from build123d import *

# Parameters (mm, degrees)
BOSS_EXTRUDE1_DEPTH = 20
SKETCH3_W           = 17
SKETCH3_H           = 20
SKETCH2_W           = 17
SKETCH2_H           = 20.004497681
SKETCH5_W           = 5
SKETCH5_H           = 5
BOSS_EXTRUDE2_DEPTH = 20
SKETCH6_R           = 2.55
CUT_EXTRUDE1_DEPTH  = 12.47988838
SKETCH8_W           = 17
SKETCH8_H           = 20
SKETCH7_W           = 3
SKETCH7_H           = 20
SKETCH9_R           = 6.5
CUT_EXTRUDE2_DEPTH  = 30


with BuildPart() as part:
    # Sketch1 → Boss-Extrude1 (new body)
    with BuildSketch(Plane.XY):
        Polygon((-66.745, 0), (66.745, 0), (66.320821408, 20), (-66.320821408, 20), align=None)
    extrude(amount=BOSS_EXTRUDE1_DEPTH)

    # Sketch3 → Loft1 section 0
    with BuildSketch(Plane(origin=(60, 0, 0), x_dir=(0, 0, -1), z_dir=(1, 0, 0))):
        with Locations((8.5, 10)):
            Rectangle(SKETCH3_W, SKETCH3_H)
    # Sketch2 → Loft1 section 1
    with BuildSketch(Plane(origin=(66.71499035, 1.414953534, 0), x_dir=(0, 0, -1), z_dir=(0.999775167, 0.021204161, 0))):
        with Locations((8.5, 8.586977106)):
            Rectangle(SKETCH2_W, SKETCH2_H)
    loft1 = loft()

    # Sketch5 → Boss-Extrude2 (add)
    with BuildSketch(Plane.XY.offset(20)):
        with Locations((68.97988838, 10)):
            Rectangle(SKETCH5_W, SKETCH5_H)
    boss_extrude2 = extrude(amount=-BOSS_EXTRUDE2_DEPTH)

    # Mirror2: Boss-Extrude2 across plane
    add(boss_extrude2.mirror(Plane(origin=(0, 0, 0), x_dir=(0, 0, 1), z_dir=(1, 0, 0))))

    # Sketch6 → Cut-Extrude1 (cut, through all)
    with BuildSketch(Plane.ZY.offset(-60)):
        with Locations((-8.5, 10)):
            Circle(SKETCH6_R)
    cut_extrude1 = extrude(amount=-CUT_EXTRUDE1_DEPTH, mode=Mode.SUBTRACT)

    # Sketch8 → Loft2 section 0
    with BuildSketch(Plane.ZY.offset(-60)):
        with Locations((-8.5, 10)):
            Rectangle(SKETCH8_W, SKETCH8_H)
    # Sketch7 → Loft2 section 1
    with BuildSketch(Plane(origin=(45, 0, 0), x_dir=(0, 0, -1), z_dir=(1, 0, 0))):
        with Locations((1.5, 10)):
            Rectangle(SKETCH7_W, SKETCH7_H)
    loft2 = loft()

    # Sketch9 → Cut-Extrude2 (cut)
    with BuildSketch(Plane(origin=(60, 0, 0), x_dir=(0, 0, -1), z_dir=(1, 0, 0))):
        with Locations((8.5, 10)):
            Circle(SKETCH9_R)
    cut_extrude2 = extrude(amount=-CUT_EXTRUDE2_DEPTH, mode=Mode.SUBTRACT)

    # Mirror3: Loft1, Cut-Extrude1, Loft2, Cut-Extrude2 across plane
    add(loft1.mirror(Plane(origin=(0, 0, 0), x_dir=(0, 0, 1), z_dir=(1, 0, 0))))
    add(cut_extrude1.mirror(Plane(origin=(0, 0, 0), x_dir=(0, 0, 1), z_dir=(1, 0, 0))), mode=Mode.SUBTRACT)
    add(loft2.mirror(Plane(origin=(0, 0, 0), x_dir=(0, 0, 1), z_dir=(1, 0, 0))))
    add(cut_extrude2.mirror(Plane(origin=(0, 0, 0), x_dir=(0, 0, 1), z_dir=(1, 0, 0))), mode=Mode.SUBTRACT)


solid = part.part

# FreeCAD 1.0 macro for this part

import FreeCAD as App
import Part
import Sketcher


def add_polygon(sketch, points):
    """Adds a closed chain of lines whose ends are joined by coincident constraints."""
    first, n = sketch.GeometryCount, len(points)
    for a, b in zip(points, points[1:] + points[:1]):
        sketch.addGeometry(Part.LineSegment(App.Vector(*a, 0), App.Vector(*b, 0)), False)
    for i in range(n):
        sketch.addConstraint(Sketcher.Constraint("Coincident", first + i, 2, first + (i + 1) % n, 1))

doc = App.newDocument("Part")
body = doc.addObject("PartDesign::Body", "Body")

# Sketch on XY plane
sketch1 = body.newObject("Sketcher::SketchObject", "Sketch")
sketch1.AttachmentSupport = (doc.getObject("XY_Plane"), [""])
sketch1.MapMode = "FlatFace"
add_polygon(sketch1, [(-67, 0), (67, 0), (66, 20), (-66, 20)])  # lines 0-3
sketch1.addConstraint([
    Sketcher.Constraint("Horizontal", 0),
    Sketcher.Constraint("Horizontal", 2),
    Sketcher.Constraint("Symmetric", 0, 2, 3, 2, -1, 1),
    Sketcher.Constraint("Equal", 1, 3),
    Sketcher.Constraint("DistanceY", -1, 1, 1, 2, 20.0),
    Sketcher.Constraint("DistanceX", 0, 1, 0, 2, 133.49),
    Sketcher.Constraint("DistanceX", 2, 2, 2, 1, 132.641643),
])
pad1 = body.newObject("PartDesign::Pad", "Pad")
pad1.Profile = sketch1
pad1.Length = 20

# Sketch on YZ plane
sketch2 = body.newObject("Sketcher::SketchObject", "Sketch001")
sketch2.AttachmentSupport = (doc.getObject("YZ_Plane"), [""])
sketch2.MapMode = "FlatFace"
sketch2.AttachmentOffset = App.Placement(App.Vector(0, 0, 60), App.Rotation())
add_polygon(sketch2, [(20, 0), (0, 0), (0, -17), (20, -17)])  # lines 0-3
sketch2.addConstraint([
    Sketcher.Constraint("Horizontal", 0),
    Sketcher.Constraint("Vertical", 1),
    Sketcher.Constraint("Horizontal", 2),
    Sketcher.Constraint("Vertical", 3),
    Sketcher.Constraint("Coincident", 0, 2, -1, 1),
    Sketcher.Constraint("DistanceX", 0, 2, 0, 1, 20.0),
    Sketcher.Constraint("DistanceY", 1, 2, 1, 1, 17.0),
])

# Sketch on an angled plane
sketch3 = body.newObject("Sketcher::SketchObject", "Sketch002")
sketch3.Placement = App.Placement(App.Vector(66.71499, 1.414954, 0), App.Rotation(App.Vector(0, 0, -1), App.Vector(-0.021204161, 0.999775167, 0), App.Vector(0.999775167, 0.021204161, 0), "ZXY"))
add_polygon(sketch3, [(0, 19), (0, -1), (17, -1), (17, 19)])  # lines 0-3
sketch3.addConstraint([
    Sketcher.Constraint("Vertical", 0),
    Sketcher.Constraint("Horizontal", 1),
    Sketcher.Constraint("Vertical", 2),
    Sketcher.Constraint("Horizontal", 3),
    Sketcher.Constraint("PointOnObject", 0, 2, -2),
    Sketcher.Constraint("DistanceX", 1, 1, 1, 2, 17.0),
    Sketcher.Constraint("DistanceY", 0, 2, 0, 1, 20.004498),
    Sketcher.Constraint("DistanceY", 0, 2, -1, 1, 1.415272),
])

additiveloft = body.newObject("PartDesign::AdditiveLoft", "AdditiveLoft")
additiveloft.Profile = sketch2
additiveloft.Sections = [sketch3]

# Sketch on XY plane
sketch4 = body.newObject("Sketcher::SketchObject", "Sketch003")
sketch4.AttachmentSupport = (doc.getObject("XY_Plane"), [""])
sketch4.MapMode = "FlatFace"
sketch4.AttachmentOffset = App.Placement(App.Vector(0, 0, 20), App.Rotation())
add_polygon(sketch4, [(66, 12), (66, 8), (71, 8), (71, 12)])  # lines 0-3
sketch4.addConstraint([
    Sketcher.Constraint("Vertical", 0),
    Sketcher.Constraint("Horizontal", 1),
    Sketcher.Constraint("Vertical", 2),
    Sketcher.Constraint("Horizontal", 3),
    Sketcher.Constraint("Equal", 3, 0),
    Sketcher.Constraint("DistanceX", 1, 1, 1, 2, 5.0),
    Sketcher.Constraint("DistanceY", -1, 1, 0, 2, 7.5),
    Sketcher.Constraint("DistanceX", -1, 1, 0, 2, 66.479888),
])
pad2 = body.newObject("PartDesign::Pad", "Pad001")
pad2.Profile = sketch4
pad2.Length = 20
pad2.Reversed = True
doc.recompute()

mirrored = body.newObject("PartDesign::Mirrored", "Mirrored")
mirrored.Originals = [pad2]
mirrored.MirrorPlane = (doc.getObject("YZ_Plane"), [""])
body.Tip = mirrored

# Sketch on YZ plane
sketch5 = body.newObject("Sketcher::SketchObject", "Sketch004")
sketch5.AttachmentSupport = (doc.getObject("YZ_Plane"), [""])
sketch5.MapMode = "FlatFace"
sketch5.AttachmentOffset = App.Placement(App.Vector(0, 0, 60), App.Rotation())
sketch5.addGeometry(Part.Circle(App.Vector(10, -8.5, 0), App.Vector(0, 0, 1), 2.5), False)
sketch5.addConstraint([
    Sketcher.Constraint("Diameter", 0, 5.1),
    Sketcher.Constraint("DistanceX", -1, 1, 0, 3, 10.0),
    Sketcher.Constraint("DistanceY", 0, 3, -1, 1, 8.5),
])
pocket1 = body.newObject("PartDesign::Pocket", "Pocket")
pocket1.Profile = sketch5
pocket1.Type = "ThroughAll"
pocket1.Reversed = True

# Sketch on YZ plane
sketch6 = body.newObject("Sketcher::SketchObject", "Sketch005")
sketch6.AttachmentSupport = (doc.getObject("YZ_Plane"), [""])
sketch6.MapMode = "FlatFace"
sketch6.AttachmentOffset = App.Placement(App.Vector(0, 0, 60), App.Rotation())
add_polygon(sketch6, [(20, -17), (0, -17), (0, 0), (20, 0)])  # lines 0-3
sketch6.addConstraint([
    Sketcher.Constraint("Horizontal", 0),
    Sketcher.Constraint("Vertical", 1),
    Sketcher.Constraint("Horizontal", 2),
    Sketcher.Constraint("Vertical", 3),
    Sketcher.Constraint("Coincident", 1, 2, -1, 1),
    Sketcher.Constraint("DistanceX", 0, 2, 0, 1, 20.0),
    Sketcher.Constraint("DistanceY", 1, 1, 1, 2, 17.0),
])

# Sketch on YZ plane
sketch7 = body.newObject("Sketcher::SketchObject", "Sketch006")
sketch7.AttachmentSupport = (doc.getObject("YZ_Plane"), [""])
sketch7.MapMode = "FlatFace"
sketch7.AttachmentOffset = App.Placement(App.Vector(0, 0, 45), App.Rotation())
add_polygon(sketch7, [(20, 0), (0, 0), (0, -3), (20, -3)])  # lines 0-3
sketch7.addConstraint([
    Sketcher.Constraint("Horizontal", 0),
    Sketcher.Constraint("Vertical", 1),
    Sketcher.Constraint("Horizontal", 2),
    Sketcher.Constraint("Vertical", 3),
    Sketcher.Constraint("Coincident", 0, 2, -1, 1),
    Sketcher.Constraint("DistanceX", 0, 2, 0, 1, 20.0),
    Sketcher.Constraint("DistanceY", 1, 2, 1, 1, 3.0),
])

additiveloft2 = body.newObject("PartDesign::AdditiveLoft", "AdditiveLoft001")
additiveloft2.Profile = sketch6
additiveloft2.Sections = [sketch7]

# Sketch on YZ plane
sketch8 = body.newObject("Sketcher::SketchObject", "Sketch007")
sketch8.AttachmentSupport = (doc.getObject("YZ_Plane"), [""])
sketch8.MapMode = "FlatFace"
sketch8.AttachmentOffset = App.Placement(App.Vector(0, 0, 60), App.Rotation())
sketch8.addGeometry(Part.Circle(App.Vector(10, -8, 0), App.Vector(0, 0, 1), 6), False)
sketch8.addConstraint([
    Sketcher.Constraint("Diameter", 0, 13.0),
    Sketcher.Constraint("DistanceX", -1, 1, 0, 3, 10.0),
    Sketcher.Constraint("DistanceY", 0, 3, -1, 1, 8.5),
])
pocket2 = body.newObject("PartDesign::Pocket", "Pocket001")
pocket2.Profile = sketch8
pocket2.Length = 30
doc.recompute()

mirrored2 = body.newObject("PartDesign::Mirrored", "Mirrored001")
mirrored2.Originals = [additiveloft, pocket1, additiveloft2, pocket2]
mirrored2.MirrorPlane = (doc.getObject("YZ_Plane"), [""])
body.Tip = mirrored2

doc.recompute()
